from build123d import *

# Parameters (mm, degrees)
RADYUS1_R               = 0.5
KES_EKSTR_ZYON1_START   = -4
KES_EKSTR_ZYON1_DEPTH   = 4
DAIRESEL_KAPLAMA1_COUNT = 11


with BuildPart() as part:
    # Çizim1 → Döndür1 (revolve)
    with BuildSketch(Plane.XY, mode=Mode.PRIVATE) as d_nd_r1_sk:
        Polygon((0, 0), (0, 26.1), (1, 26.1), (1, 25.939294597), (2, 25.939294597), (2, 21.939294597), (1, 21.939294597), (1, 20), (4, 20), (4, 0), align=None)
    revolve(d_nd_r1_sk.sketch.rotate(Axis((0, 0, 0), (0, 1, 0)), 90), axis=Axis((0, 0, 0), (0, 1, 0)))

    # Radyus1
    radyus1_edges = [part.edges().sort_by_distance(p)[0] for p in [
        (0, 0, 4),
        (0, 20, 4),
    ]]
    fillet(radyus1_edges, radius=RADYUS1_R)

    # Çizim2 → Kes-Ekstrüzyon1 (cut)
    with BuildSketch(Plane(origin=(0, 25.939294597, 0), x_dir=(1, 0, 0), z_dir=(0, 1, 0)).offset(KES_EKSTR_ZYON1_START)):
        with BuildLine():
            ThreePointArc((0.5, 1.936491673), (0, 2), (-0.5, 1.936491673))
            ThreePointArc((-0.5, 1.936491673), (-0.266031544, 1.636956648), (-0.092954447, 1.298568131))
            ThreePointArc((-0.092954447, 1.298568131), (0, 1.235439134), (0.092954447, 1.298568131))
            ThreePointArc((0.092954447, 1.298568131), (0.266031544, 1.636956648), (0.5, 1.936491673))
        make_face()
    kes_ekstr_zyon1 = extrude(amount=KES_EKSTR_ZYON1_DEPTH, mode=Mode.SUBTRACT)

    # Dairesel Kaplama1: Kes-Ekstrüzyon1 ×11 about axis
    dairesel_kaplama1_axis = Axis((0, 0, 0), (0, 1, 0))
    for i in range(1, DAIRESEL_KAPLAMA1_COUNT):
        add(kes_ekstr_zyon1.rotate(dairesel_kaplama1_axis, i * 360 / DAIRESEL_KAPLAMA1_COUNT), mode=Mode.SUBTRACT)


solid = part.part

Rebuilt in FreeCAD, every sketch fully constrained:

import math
import FreeCAD as App
import Part
import Sketcher


def edges_at(feature, points):
    """Names of the edges that pass closest to the given points."""
    edges = feature.Shape.Edges
    near = lambda p: min(range(len(edges)), key=lambda i: edges[i].distToShape(Part.Vertex(*p))[0])
    return sorted({f"Edge{near(p) + 1}" for p in points})


def add_polygon(sketch, points):
    """Adds a closed chain of lines whose ends are joined by coincident constraints."""
    first, n = sketch.GeometryCount, len(points)
    for a, b in zip(points, points[1:] + points[:1]):
        sketch.addGeometry(Part.LineSegment(App.Vector(*a, 0), App.Vector(*b, 0)), False)
    for i in range(n):
        sketch.addConstraint(Sketcher.Constraint("Coincident", first + i, 2, first + (i + 1) % n, 1))

doc = App.newDocument("Part")
params = doc.addObject("Spreadsheet::Sheet", "Params")
for row, (alias, value) in enumerate([
    ("sketch1_width", "4 mm"),
    ("sketch1_width2", "3 mm"),
    ("sketch1_height", "20 mm"),
    ("sketch1_height2", "26.1 mm"),
    ("revolution_angle", "360 deg"),
    ("fillet_radius", "0.5 mm"),
    ("sketch2_radius", "2 mm"),
    ("sketch2_radius2", "0.1 mm"),
    ("pocket1_length", "4 mm"),
], start=1):
    params.set(f"A{row}", alias)
    params.set(f"B{row}", "=" + value)
    params.setAlias(f"B{row}", alias)

body = doc.addObject("PartDesign::Body", "Body")

sketch1 = doc.addObject("Sketcher::SketchObject", "Sketch")
body.addObject(sketch1)
sketch1.AttachmentSupport = (doc.XY_Plane, [""])
sketch1.MapMode = "FlatFace"
add_polygon(sketch1, [(0, 26.1), (0, 0), (4, 0), (4, 20), (1, 20), (1, 21.94), (2, 21.94), (2, 25.94), (1, 25.94), (1, 26.1)])
sketch1.addConstraint(Sketcher.Constraint("Vertical", 0))
sketch1.addConstraint(Sketcher.Constraint("Horizontal", 1))
sketch1.addConstraint(Sketcher.Constraint("Vertical", 2))
sketch1.addConstraint(Sketcher.Constraint("Horizontal", 3))
sketch1.addConstraint(Sketcher.Constraint("Vertical", 4))
sketch1.addConstraint(Sketcher.Constraint("Horizontal", 5))
sketch1.addConstraint(Sketcher.Constraint("Vertical", 6))
sketch1.addConstraint(Sketcher.Constraint("Horizontal", 7))
sketch1.addConstraint(Sketcher.Constraint("Vertical", 8))
sketch1.addConstraint(Sketcher.Constraint("Horizontal", 9))
sketch1.addConstraint(Sketcher.Constraint("Coincident", 0, 2, -1, 1))
sketch1.addConstraint(Sketcher.Constraint("Vertical", 4, 2, 7, 2))
sketch1.addConstraint(Sketcher.Constraint("Equal", 7, 9))
sketch1.addConstraint(Sketcher.Constraint("Equal", 1, 6))
sketch1.addConstraint(Sketcher.Constraint("DistanceX", 1, 1, 1, 2, 4.0))
sketch1.addConstraint(Sketcher.Constraint("DistanceX", 3, 2, 3, 1, 3.0))
sketch1.addConstraint(Sketcher.Constraint("DistanceY", 2, 1, 2, 2, 20.0))
sketch1.addConstraint(Sketcher.Constraint("DistanceY", 0, 2, 0, 1, 26.1))
sketch1.addConstraint(Sketcher.Constraint("DistanceY", 4, 1, 4, 2, 1.939295))
sketch1.setExpression("Constraints[24]", "Params.sketch1_width")
sketch1.setExpression("Constraints[25]", "Params.sketch1_width2")
sketch1.setExpression("Constraints[26]", "Params.sketch1_height")
sketch1.setExpression("Constraints[27]", "Params.sketch1_height2")
revolution = doc.addObject("PartDesign::Revolution", "Revolution")
body.addObject(revolution)
revolution.Profile = sketch1
revolution.ReferenceAxis = (sketch1, ["V_Axis"])
revolution.setExpression("Angle", "Params.revolution_angle")
doc.recompute()

fillet = doc.addObject("PartDesign::Fillet", "Fillet")
body.addObject(fillet)
fillet.Base = (revolution, edges_at(revolution, [(0, 0, 4), (0, 20, 4)]))
fillet.setExpression("Radius", "Params.fillet_radius")

sketch2 = doc.addObject("Sketcher::SketchObject", "Sketch001")
body.addObject(sketch2)
sketch2.AttachmentSupport = (doc.XZ_Plane, [""])
sketch2.MapMode = "FlatFace"
sketch2.AttachmentOffset = App.Placement(App.Vector(0, 0, -21.939295), App.Rotation())
sketch2.addGeometry(Part.ArcOfCircle(Part.Circle(App.Vector(0, 0, 0), App.Vector(0, 0, 1), 2), math.radians(-104), math.radians(-76)), False)
sketch2.addGeometry(Part.ArcOfCircle(Part.Circle(App.Vector(-1.95, -0.56, 0), App.Vector(0, 0, 1), 2), math.radians(-43), math.radians(-22)), False)
sketch2.addGeometry(Part.ArcOfCircle(Part.Circle(App.Vector(0, -1.34, 0), App.Vector(0, 0, 1), 0.1), math.radians(22), math.radians(158)), False)
sketch2.addGeometry(Part.ArcOfCircle(Part.Circle(App.Vector(1.95, -0.56, 0), App.Vector(0, 0, 1), 2), math.radians(-158), math.radians(-137)), False)
sketch2.addConstraint(Sketcher.Constraint("Coincident", 0, 1, 1, 1))
sketch2.addConstraint(Sketcher.Constraint("Tangent", 1, 2, 2, 2))
sketch2.addConstraint(Sketcher.Constraint("Tangent", 2, 1, 3, 1))
sketch2.addConstraint(Sketcher.Constraint("Coincident", 3, 2, 0, 2))
sketch2.addConstraint(Sketcher.Constraint("Coincident", 0, 3, -1, 1))
sketch2.addConstraint(Sketcher.Constraint("Equal", 0, 1))
sketch2.addConstraint(Sketcher.Constraint("Equal", 1, 3))
sketch2.addConstraint(Sketcher.Constraint("Symmetric", 1, 3, 3, 3, -2))
sketch2.addConstraint(Sketcher.Constraint("Radius", 0, 2.0))
sketch2.addConstraint(Sketcher.Constraint("Radius", 2, 0.1))
sketch2.addConstraint(Sketcher.Constraint("DistanceX", 0, 1, 3, 2, 1.0))
sketch2.addConstraint(Sketcher.Constraint("DistanceY", 1, 3, -1, 1, 0.561148))
sketch2.setExpression("Constraints[8]", "Params.sketch2_radius")
sketch2.setExpression("Constraints[9]", "Params.sketch2_radius2")
pocket1 = doc.addObject("PartDesign::Pocket", "Pocket")
body.addObject(pocket1)
pocket1.Profile = sketch2
pocket1.setExpression("Length", "Params.pocket1_length")
doc.recompute()

polarpattern = doc.addObject("PartDesign::PolarPattern", "PolarPattern")
body.addObject(polarpattern)
polarpattern.Originals = [pocket1]
polarpattern.Axis = (doc.Y_Axis, [""])
polarpattern.Angle = 360
polarpattern.Occurrences = 11
body.Tip = polarpattern

doc.recompute()
